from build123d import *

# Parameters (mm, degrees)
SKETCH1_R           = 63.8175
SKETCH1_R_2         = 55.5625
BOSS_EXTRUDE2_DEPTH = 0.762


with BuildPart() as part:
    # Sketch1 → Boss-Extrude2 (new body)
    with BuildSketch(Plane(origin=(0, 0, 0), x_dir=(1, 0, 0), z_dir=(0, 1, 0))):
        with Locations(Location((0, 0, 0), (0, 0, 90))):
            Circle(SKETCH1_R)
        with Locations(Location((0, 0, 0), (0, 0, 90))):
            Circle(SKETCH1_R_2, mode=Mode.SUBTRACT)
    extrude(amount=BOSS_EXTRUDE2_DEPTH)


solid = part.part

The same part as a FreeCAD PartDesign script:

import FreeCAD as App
import Part
import Sketcher
from FreeCAD import Vector
Q = App.Units.Quantity

doc = App.newDocument("Part")
body = doc.addObject("PartDesign::Body", "Body")

# Sketch on XZ plane
sketch1 = body.newObject("Sketcher::SketchObject", "Sketch")
sketch1.AttachmentSupport = (doc.getObject("XZ_Plane"), [""])
sketch1.MapMode = "FlatFace"
sketch1.addGeometry([
    Part.Circle(Vector(0, 0, 0), Vector(0, 0, 1), 64),
    Part.Circle(Vector(0, 0, 0), Vector(0, 0, 1), 56),
], False)
sketch1.addConstraint([
    Sketcher.Constraint("Coincident", 0, 3, -1, 1),
    Sketcher.Constraint("Coincident", 1, 3, -1, 1),
    Sketcher.Constraint("Diameter", 0, Q("5.025 in")),
    Sketcher.Constraint("Diameter", 1, Q("4.375 in")),
])
pad1 = body.newObject("PartDesign::Pad", "Pad")
pad1.Profile = sketch1
pad1.Length = Q("0.03 in")
pad1.Reversed = True

doc.recompute()
